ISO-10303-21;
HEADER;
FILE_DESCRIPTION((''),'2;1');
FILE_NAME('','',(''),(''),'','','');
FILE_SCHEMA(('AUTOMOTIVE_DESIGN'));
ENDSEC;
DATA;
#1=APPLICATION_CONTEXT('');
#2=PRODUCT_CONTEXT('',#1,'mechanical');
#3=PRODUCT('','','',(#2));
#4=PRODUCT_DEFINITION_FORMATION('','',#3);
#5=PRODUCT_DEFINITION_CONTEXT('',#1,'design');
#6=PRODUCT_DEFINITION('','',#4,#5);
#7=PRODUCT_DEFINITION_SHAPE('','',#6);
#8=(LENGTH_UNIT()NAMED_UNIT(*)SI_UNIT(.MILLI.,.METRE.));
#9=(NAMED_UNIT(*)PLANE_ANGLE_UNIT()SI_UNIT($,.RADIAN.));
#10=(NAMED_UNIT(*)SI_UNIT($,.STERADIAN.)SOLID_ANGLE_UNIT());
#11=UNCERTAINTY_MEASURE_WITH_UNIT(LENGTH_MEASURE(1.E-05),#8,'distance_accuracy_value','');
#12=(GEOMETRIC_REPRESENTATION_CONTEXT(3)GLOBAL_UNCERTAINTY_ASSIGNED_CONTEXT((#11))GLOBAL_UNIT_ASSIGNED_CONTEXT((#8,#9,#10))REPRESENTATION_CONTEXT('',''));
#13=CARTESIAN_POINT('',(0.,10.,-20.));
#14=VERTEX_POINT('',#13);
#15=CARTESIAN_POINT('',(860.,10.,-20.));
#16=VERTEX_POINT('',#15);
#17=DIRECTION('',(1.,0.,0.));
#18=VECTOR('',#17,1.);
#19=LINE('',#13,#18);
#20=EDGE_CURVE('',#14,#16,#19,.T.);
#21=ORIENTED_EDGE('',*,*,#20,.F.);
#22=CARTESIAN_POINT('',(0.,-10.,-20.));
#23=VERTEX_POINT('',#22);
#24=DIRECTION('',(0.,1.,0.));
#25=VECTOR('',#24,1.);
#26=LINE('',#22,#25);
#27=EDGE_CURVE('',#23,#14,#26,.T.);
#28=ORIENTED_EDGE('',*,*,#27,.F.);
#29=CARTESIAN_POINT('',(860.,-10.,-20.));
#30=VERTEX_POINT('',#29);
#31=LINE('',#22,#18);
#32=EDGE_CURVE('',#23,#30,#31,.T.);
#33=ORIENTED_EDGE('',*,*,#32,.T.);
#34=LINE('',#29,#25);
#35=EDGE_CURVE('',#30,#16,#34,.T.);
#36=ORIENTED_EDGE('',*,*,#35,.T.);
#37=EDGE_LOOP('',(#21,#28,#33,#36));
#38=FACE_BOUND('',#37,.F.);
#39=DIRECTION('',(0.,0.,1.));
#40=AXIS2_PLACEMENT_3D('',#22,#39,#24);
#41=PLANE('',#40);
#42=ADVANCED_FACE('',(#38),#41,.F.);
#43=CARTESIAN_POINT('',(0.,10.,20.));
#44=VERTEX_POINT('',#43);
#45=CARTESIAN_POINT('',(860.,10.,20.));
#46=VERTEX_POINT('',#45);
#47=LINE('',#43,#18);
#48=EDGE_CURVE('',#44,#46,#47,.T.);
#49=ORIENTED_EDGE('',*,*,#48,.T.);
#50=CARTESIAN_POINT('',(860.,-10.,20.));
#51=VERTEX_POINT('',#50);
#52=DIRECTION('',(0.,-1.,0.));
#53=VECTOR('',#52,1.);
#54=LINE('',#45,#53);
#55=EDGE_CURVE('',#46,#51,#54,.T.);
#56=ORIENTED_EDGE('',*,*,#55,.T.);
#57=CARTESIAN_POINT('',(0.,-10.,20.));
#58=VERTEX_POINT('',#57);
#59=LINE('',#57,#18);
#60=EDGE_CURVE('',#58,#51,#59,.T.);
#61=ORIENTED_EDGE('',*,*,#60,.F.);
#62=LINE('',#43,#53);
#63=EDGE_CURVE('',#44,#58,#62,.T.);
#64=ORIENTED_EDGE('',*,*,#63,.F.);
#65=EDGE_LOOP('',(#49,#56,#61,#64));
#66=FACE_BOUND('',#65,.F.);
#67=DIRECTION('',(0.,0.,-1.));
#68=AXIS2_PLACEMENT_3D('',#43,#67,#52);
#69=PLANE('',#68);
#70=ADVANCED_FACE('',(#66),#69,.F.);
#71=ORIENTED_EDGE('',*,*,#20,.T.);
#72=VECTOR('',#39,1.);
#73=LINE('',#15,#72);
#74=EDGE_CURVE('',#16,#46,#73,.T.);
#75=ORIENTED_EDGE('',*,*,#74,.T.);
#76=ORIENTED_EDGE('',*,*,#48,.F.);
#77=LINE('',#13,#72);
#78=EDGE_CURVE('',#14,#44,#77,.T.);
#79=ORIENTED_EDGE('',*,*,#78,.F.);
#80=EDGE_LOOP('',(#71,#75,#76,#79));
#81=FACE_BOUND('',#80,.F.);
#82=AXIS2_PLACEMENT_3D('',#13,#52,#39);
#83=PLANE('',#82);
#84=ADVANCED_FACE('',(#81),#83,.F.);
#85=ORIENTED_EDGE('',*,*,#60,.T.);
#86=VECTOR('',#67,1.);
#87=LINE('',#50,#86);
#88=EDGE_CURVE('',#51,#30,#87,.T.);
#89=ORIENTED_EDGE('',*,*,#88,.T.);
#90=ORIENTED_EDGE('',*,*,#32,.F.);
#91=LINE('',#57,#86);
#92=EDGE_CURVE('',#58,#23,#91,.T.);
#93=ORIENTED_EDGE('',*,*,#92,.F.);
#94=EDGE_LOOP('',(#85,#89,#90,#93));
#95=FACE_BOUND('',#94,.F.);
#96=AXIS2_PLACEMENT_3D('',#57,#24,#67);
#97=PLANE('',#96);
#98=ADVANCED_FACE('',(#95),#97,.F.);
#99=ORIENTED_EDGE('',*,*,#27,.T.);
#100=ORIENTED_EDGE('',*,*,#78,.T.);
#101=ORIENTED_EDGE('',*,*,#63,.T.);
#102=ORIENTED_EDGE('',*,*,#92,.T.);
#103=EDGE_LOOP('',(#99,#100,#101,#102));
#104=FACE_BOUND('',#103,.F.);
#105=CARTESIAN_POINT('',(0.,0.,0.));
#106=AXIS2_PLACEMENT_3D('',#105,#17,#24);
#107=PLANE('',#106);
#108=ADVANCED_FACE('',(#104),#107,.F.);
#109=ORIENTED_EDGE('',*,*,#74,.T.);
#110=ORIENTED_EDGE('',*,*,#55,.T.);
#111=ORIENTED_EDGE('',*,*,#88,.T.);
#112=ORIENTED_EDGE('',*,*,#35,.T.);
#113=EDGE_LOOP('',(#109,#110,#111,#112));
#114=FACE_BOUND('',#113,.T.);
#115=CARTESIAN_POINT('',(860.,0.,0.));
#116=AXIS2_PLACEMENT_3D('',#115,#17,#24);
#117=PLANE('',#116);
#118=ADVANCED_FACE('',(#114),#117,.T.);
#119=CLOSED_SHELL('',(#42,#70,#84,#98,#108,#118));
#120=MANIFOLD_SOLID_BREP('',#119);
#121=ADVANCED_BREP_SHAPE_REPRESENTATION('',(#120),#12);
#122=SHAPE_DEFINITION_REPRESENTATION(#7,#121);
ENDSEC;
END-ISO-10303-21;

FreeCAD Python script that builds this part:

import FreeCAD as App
import Part
import Sketcher

V = App.Vector
Q = App.Units.Quantity

doc = App.newDocument("Part")
params = doc.addObject("Spreadsheet::Sheet", "Params")
for row, (alias, value) in enumerate([
    ("sketch1_width", "20 mm"),
    ("sketch1_height", "40 mm"),
    ("pad1_length", "860 mm"),
], start=1):
    params.set(f"A{row}", alias)
    params.set(f"B{row}", "=" + value)
    params.setAlias(f"B{row}", alias)

body = doc.addObject("PartDesign::Body", "Body")

# Sketch on YZ plane
sketch1 = doc.addObject("Sketcher::SketchObject", "Sketch")
body.addObject(sketch1)
sketch1.AttachmentSupport = (doc.YZ_Plane, [""])
sketch1.MapMode = "FlatFace"
sketch1.addGeometry([
    Part.LineSegment(V(-10, 20, 0), V(-10, -20, 0)),
    Part.LineSegment(V(-10, -20, 0), V(10, -20, 0)),
    Part.LineSegment(V(10, -20, 0), V(10, 20, 0)),
    Part.LineSegment(V(10, 20, 0), V(-10, 20, 0)),
], False)
sketch1.addConstraint([
    Sketcher.Constraint("Coincident", 0, 2, 1, 1),
    Sketcher.Constraint("Coincident", 1, 2, 2, 1),
    Sketcher.Constraint("Coincident", 2, 2, 3, 1),
    Sketcher.Constraint("Coincident", 3, 2, 0, 1),
    Sketcher.Constraint("Vertical", 0),
    Sketcher.Constraint("Horizontal", 1),
    Sketcher.Constraint("Vertical", 2),
    Sketcher.Constraint("Horizontal", 3),
    Sketcher.Constraint("Symmetric", 0, 2, 2, 2, -1, 1),
    Sketcher.Constraint("DistanceX", 1, 1, 1, 2, Q("20 mm")),
    Sketcher.Constraint("DistanceY", 0, 2, 0, 1, Q("40 mm")),
])
sketch1.setExpression("Constraints[9]", "Params.sketch1_width")
sketch1.setExpression("Constraints[10]", "Params.sketch1_height")
pad1 = doc.addObject("PartDesign::Pad", "Pad")
body.addObject(pad1)
pad1.Profile = sketch1
pad1.setExpression("Length", "Params.pad1_length")

doc.recompute()
